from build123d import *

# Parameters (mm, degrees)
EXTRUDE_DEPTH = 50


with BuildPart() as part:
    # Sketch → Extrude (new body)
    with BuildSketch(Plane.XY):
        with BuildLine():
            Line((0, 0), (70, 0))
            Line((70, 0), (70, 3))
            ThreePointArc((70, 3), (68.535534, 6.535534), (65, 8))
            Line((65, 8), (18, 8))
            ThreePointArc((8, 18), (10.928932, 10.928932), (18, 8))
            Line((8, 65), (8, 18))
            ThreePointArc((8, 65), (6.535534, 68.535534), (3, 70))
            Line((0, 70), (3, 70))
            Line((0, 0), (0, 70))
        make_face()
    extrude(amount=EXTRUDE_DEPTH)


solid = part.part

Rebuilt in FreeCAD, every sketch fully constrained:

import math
import FreeCAD as App
import Part
import Sketcher
from FreeCAD import Vector

doc = App.newDocument("Part")
body = doc.addObject("PartDesign::Body", "Body")

# Sketch on XY plane
sketch1 = body.newObject("Sketcher::SketchObject", "Sketch")
sketch1.AttachmentSupport = (doc.getObject("XY_Plane"), [""])
sketch1.MapMode = "FlatFace"
sketch1.addGeometry([
    Part.LineSegment(Vector(0, 0, 0), Vector(70, 0, 0)),  # 0
    Part.LineSegment(Vector(70, 0, 0), Vector(70, 3, 0)),  # 1
    Part.ArcOfCircle(Part.Circle(Vector(65, 3, 0), Vector(0, 0, 1), 5), math.radians(0), math.radians(90)),  # 2
    Part.LineSegment(Vector(65, 8, 0), Vector(18, 8, 0)),  # 3
    Part.ArcOfCircle(Part.Circle(Vector(18, 18, 0), Vector(0, 0, 1), 10), math.radians(180), math.radians(270)),  # 4
    Part.LineSegment(Vector(8, 18, 0), Vector(8, 65, 0)),  # 5
    Part.ArcOfCircle(Part.Circle(Vector(3, 65, 0), Vector(0, 0, 1), 5), math.radians(0), math.radians(90)),  # 6
    Part.LineSegment(Vector(3, 70, 0), Vector(0, 70, 0)),  # 7
    Part.LineSegment(Vector(0, 70, 0), Vector(0, 0, 0)),  # 8
], False)
sketch1.addConstraint([
    Sketcher.Constraint("Coincident", 0, 2, 1, 1),
    Sketcher.Constraint("Tangent", 1, 2, 2, 1),
    Sketcher.Constraint("Tangent", 2, 2, 3, 1),
    Sketcher.Constraint("Tangent", 3, 2, 4, 2),
    Sketcher.Constraint("Tangent", 4, 1, 5, 1),
    Sketcher.Constraint("Tangent", 5, 2, 6, 1),
    Sketcher.Constraint("Tangent", 6, 2, 7, 1),
    Sketcher.Constraint("Coincident", 7, 2, 8, 1),
    Sketcher.Constraint("Coincident", 8, 2, 0, 1),
    Sketcher.Constraint("Horizontal", 0),
    Sketcher.Constraint("Vertical", 1),
    Sketcher.Constraint("Horizontal", 3),
    Sketcher.Constraint("Vertical", 5),
    Sketcher.Constraint("Horizontal", 7),
    Sketcher.Constraint("Vertical", 8),
    Sketcher.Constraint("Coincident", 8, 2, -1, 1),
    Sketcher.Constraint("Equal", 2, 6),
    Sketcher.Constraint("Equal", 7, 1),
    Sketcher.Constraint("Equal", 3, 5),
    Sketcher.Constraint("Radius", 2, 5.0),
    Sketcher.Constraint("Radius", 4, 9.999999),
    Sketcher.Constraint("DistanceX", 0, 1, 0, 2, 70.0),
    Sketcher.Constraint("DistanceX", 3, 2, 3, 1, 47.0),
])
pad1 = body.newObject("PartDesign::Pad", "Pad")
pad1.Profile = sketch1
pad1.Length = 50

doc.recompute()
